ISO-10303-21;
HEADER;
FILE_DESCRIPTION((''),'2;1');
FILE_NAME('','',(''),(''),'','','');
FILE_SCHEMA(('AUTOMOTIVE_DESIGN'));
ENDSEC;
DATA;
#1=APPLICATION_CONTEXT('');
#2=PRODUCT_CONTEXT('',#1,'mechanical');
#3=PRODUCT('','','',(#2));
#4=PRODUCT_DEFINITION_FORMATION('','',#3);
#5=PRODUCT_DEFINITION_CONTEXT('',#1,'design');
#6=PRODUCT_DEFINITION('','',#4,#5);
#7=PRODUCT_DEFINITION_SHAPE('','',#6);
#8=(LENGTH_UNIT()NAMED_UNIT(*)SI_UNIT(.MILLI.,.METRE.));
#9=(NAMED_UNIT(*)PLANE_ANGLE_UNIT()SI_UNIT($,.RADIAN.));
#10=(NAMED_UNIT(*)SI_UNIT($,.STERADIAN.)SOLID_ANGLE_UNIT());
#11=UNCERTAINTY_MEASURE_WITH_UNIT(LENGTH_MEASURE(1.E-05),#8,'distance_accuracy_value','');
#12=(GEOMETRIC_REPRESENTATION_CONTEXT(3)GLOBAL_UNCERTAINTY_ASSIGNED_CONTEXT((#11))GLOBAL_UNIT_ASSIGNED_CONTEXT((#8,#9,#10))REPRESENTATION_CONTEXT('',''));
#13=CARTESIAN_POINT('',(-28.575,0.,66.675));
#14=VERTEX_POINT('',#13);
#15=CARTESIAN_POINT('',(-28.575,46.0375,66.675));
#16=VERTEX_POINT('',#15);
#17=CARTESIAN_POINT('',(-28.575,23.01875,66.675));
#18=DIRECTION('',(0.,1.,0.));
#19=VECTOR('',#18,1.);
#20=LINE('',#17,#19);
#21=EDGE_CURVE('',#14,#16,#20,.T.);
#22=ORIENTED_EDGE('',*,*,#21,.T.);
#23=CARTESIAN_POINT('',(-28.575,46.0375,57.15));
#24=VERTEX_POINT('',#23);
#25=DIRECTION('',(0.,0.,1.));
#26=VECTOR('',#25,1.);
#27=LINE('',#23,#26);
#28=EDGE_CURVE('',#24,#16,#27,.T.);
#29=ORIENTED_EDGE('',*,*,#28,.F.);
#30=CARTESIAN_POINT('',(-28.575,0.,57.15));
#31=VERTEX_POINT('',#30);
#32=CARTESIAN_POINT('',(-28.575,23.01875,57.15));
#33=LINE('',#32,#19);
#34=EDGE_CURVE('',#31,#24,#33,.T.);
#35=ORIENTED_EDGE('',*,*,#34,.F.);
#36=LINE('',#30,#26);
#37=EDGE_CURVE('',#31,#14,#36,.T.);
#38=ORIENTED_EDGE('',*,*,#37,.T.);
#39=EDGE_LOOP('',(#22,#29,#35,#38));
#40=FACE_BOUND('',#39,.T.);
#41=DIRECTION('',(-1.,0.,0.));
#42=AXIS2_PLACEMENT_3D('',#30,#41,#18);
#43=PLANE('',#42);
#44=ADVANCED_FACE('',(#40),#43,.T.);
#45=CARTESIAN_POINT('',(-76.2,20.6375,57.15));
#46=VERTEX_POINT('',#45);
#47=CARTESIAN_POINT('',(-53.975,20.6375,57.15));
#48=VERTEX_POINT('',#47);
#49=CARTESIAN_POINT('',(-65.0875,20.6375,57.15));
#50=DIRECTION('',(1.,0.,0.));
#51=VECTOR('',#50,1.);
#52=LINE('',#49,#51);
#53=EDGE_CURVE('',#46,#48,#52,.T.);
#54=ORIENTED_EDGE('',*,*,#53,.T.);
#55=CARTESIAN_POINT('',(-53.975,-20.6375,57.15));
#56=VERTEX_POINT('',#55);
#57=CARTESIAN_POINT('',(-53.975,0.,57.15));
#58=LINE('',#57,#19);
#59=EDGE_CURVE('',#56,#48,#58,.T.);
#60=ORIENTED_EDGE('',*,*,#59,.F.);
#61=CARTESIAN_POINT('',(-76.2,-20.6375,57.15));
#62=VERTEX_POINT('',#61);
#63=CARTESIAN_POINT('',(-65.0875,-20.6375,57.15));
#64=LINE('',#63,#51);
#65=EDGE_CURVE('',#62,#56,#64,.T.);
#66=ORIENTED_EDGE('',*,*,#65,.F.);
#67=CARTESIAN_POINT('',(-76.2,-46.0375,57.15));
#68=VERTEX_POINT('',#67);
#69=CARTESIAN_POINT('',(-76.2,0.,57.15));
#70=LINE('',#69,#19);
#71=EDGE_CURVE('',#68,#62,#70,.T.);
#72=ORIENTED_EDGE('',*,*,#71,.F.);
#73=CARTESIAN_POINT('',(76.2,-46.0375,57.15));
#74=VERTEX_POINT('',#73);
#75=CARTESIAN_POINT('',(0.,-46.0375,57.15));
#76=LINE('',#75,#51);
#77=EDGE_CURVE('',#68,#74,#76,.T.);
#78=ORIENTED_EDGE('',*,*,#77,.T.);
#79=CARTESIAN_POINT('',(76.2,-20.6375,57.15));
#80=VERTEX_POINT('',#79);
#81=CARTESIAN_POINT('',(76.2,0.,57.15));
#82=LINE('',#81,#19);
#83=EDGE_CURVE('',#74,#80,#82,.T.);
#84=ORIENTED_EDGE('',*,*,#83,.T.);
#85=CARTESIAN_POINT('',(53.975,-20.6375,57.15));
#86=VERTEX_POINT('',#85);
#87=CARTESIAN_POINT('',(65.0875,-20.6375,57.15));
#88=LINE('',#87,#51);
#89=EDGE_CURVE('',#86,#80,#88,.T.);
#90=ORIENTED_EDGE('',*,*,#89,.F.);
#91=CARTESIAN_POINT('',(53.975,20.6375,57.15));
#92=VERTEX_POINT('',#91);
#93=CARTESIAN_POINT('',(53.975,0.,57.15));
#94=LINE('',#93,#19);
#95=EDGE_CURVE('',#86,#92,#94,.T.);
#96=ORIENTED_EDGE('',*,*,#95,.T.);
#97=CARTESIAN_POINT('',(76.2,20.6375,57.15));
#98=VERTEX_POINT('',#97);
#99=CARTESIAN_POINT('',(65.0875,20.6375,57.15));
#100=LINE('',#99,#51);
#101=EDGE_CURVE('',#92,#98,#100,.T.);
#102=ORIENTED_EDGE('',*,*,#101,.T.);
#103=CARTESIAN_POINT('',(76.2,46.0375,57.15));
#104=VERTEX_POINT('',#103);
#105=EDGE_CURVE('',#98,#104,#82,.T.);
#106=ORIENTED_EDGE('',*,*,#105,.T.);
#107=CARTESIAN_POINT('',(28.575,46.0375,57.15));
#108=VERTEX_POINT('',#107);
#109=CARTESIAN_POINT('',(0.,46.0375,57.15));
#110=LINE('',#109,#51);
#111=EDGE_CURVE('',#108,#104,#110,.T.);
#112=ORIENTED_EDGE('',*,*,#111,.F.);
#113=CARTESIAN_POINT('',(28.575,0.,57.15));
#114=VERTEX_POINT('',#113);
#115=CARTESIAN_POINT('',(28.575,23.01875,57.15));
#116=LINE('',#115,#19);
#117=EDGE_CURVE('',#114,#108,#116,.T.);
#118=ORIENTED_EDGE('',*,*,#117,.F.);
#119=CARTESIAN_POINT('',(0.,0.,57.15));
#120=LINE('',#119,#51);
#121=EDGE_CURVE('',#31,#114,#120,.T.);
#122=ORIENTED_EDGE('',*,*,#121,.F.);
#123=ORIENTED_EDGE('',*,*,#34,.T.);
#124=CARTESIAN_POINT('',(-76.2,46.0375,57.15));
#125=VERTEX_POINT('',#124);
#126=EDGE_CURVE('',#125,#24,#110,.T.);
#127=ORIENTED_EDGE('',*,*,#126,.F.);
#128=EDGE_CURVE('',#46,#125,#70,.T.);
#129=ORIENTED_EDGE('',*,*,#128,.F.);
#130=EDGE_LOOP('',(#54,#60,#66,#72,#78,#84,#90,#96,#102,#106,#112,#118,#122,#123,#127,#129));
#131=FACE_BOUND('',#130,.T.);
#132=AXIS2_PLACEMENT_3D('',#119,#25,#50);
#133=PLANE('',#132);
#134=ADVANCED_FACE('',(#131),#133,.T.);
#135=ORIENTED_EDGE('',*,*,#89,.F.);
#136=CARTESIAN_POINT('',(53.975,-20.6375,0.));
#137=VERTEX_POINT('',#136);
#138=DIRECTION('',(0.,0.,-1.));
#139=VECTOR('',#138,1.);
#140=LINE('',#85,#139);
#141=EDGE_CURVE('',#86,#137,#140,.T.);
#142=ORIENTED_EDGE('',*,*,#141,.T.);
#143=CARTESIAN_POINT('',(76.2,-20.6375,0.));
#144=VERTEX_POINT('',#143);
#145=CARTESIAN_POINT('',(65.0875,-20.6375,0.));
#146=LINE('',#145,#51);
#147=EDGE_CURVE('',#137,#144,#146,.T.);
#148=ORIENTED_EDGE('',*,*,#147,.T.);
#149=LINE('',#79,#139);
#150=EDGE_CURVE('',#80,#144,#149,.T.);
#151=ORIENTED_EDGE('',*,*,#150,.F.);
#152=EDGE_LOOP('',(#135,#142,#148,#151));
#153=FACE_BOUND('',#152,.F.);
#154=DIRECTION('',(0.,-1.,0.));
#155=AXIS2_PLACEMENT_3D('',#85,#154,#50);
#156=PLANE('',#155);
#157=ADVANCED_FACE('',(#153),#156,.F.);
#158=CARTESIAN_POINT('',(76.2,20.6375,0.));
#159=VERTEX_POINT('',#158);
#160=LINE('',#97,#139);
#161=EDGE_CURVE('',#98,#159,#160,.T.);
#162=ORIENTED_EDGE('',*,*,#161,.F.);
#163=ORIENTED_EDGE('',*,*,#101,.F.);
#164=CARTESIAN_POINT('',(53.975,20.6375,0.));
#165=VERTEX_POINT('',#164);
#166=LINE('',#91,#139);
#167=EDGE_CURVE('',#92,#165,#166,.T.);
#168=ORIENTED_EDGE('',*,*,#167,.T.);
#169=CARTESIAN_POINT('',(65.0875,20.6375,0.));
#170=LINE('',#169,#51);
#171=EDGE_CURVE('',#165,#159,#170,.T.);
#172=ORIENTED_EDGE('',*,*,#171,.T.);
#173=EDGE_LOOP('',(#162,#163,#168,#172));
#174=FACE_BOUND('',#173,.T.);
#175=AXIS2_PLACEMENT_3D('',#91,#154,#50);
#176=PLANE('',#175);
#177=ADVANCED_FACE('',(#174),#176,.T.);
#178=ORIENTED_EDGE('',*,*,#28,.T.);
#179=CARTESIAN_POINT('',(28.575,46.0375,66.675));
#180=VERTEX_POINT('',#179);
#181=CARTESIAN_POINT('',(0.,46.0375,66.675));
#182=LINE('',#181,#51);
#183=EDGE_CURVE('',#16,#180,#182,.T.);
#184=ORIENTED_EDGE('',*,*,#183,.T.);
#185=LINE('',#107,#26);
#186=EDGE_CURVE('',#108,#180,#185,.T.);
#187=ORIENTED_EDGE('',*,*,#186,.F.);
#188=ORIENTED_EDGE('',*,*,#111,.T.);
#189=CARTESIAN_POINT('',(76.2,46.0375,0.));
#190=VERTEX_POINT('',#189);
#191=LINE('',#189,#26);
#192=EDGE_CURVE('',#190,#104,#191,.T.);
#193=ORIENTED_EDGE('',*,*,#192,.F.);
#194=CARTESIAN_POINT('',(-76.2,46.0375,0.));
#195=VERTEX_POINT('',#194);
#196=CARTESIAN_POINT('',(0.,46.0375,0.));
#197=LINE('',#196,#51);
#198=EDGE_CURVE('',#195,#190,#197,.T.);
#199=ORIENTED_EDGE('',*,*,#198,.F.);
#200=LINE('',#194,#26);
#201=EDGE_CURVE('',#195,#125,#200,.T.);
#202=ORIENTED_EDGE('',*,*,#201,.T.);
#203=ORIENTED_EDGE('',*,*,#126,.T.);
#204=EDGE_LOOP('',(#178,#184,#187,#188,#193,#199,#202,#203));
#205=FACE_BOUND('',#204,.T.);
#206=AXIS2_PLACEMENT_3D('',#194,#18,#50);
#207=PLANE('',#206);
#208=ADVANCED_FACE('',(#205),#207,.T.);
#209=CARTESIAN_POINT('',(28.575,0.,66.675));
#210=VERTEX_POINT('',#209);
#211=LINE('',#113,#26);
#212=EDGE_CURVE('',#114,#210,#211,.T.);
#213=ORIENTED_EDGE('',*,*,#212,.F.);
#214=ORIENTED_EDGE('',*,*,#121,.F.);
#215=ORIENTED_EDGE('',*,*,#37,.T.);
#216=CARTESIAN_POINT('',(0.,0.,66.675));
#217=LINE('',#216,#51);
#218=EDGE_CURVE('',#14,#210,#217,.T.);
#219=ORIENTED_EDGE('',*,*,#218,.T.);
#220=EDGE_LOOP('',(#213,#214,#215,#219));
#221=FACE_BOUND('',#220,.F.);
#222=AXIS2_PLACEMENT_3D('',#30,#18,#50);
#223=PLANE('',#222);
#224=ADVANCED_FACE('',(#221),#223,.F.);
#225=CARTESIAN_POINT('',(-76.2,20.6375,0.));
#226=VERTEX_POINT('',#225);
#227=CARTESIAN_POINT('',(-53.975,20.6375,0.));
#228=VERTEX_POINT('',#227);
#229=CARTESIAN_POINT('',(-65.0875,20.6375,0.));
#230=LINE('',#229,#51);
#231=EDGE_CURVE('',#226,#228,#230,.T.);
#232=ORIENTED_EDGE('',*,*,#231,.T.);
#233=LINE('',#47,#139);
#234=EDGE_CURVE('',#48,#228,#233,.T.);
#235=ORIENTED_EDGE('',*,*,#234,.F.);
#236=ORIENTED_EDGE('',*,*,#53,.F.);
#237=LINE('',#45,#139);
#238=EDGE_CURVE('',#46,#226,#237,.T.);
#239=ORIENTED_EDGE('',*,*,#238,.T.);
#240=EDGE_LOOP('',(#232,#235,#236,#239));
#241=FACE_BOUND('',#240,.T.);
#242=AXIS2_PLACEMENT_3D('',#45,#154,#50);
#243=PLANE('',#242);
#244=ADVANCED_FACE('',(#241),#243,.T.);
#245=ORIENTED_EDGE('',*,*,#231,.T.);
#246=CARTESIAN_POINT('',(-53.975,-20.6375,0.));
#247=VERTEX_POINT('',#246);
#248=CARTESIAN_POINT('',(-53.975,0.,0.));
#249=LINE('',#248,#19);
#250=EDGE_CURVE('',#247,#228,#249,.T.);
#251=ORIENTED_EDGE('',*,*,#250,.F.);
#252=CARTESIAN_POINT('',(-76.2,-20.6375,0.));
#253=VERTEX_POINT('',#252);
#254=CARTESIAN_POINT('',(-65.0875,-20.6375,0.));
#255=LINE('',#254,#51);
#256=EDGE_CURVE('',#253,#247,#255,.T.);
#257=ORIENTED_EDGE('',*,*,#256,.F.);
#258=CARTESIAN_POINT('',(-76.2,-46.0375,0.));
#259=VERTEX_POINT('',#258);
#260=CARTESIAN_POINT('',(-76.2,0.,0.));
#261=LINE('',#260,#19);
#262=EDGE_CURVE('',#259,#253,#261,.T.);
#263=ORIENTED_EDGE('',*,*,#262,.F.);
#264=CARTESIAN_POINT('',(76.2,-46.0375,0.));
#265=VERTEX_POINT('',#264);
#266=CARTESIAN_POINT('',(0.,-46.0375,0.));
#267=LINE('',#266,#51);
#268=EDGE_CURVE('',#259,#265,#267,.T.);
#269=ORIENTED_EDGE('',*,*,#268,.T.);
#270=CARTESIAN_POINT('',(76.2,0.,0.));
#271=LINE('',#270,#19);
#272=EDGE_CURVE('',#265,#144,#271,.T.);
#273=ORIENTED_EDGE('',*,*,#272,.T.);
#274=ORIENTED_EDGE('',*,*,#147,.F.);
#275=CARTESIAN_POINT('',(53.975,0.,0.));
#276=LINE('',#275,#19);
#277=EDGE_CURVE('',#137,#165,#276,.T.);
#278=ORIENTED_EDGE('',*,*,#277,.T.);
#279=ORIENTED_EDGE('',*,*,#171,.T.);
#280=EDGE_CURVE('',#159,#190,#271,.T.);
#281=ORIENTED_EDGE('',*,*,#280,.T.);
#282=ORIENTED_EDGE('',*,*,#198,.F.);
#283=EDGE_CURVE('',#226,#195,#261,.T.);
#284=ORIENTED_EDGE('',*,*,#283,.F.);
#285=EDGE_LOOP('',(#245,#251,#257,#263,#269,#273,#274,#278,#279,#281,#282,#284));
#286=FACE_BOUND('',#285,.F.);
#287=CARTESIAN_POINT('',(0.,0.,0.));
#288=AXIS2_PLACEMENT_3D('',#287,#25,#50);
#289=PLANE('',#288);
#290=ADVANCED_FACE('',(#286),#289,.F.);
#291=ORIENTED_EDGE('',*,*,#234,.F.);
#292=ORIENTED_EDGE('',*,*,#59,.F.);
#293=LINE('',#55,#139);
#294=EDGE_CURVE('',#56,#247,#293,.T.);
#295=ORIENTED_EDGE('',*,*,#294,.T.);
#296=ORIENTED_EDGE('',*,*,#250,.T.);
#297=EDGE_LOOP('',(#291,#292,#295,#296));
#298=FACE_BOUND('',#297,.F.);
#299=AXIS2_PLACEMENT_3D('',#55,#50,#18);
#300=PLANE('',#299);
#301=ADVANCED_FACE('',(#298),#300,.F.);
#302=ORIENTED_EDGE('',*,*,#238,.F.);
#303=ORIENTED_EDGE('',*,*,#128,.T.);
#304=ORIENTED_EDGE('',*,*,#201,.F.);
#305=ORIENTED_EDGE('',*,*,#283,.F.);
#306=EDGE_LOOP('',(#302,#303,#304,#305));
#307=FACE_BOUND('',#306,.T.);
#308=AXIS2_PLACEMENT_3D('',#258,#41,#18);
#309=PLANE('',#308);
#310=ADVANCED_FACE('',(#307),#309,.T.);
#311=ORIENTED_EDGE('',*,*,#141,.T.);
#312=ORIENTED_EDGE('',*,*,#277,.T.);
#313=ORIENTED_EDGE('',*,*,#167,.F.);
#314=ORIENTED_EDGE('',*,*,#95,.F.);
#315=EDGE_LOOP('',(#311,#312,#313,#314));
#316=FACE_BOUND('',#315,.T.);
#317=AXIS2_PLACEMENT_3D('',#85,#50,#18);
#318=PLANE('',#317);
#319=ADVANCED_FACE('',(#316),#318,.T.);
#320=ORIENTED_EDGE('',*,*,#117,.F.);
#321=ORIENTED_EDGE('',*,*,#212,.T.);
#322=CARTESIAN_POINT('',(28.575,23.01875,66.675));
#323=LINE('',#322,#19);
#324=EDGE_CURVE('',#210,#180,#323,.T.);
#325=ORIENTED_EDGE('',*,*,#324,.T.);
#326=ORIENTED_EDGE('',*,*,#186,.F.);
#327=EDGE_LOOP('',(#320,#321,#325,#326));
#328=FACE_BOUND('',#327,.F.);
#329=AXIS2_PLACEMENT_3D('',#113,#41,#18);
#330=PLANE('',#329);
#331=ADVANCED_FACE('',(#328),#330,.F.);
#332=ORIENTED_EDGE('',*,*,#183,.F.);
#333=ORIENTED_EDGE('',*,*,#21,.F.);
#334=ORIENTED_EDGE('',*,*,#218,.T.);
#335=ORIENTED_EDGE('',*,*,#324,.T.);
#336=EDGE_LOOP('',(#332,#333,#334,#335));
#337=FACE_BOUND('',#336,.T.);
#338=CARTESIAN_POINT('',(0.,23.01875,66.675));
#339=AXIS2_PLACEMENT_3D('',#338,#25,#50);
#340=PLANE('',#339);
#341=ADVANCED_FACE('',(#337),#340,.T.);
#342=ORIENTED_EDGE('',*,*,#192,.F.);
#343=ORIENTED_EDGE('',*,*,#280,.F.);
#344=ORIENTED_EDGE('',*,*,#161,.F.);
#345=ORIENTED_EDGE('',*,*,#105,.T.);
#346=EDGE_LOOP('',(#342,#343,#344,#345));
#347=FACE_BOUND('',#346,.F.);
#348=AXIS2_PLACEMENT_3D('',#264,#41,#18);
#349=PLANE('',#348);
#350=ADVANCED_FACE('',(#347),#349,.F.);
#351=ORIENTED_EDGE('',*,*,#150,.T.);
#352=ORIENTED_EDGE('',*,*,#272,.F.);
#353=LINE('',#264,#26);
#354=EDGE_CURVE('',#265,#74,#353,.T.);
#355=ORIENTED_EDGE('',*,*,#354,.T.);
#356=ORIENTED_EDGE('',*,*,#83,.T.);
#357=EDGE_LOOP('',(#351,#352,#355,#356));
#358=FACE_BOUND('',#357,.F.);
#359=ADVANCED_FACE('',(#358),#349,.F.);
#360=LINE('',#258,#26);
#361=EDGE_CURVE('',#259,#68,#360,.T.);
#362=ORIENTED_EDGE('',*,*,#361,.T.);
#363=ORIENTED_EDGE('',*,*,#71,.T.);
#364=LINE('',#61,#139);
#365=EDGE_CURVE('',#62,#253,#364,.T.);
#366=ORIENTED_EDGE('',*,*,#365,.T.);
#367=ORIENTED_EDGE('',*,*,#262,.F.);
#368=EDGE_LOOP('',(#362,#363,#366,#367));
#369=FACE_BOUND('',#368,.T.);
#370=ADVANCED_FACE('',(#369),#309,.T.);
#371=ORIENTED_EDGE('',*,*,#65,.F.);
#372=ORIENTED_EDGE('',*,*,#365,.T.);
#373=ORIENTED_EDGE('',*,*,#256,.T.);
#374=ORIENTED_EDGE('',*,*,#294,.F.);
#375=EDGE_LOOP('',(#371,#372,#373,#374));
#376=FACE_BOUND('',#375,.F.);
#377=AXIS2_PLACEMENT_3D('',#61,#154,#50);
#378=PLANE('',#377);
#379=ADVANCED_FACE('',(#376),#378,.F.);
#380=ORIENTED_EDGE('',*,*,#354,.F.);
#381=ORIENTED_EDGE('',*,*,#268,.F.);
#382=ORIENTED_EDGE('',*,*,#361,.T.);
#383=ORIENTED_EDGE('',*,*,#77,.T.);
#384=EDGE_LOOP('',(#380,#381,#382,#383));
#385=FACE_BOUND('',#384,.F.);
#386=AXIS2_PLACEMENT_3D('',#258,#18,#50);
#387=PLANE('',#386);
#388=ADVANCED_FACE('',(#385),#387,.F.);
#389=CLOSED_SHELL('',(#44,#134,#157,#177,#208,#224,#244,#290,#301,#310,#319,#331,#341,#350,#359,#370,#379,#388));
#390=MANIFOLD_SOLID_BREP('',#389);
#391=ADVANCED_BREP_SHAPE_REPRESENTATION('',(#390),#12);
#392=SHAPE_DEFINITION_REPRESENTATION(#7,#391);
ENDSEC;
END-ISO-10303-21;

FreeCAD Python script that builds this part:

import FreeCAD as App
import Part
import Sketcher
Q = App.Units.Quantity

doc = App.newDocument("Part")
body = doc.addObject("PartDesign::Body", "Body")

# Sketch on XY plane
sketch1 = body.newObject("Sketcher::SketchObject", "Sketch")
sketch1.AttachmentSupport = (doc.getObject("XY_Plane"), [""])
sketch1.MapMode = "FlatFace"
sketch1.addGeometry(Part.LineSegment(App.Vector(-76, 46, 0), App.Vector(-76, -46, 0)), False)
sketch1.addGeometry(Part.LineSegment(App.Vector(-76, -46, 0), App.Vector(76, -46, 0)), False)
sketch1.addGeometry(Part.LineSegment(App.Vector(76, -46, 0), App.Vector(76, 46, 0)), False)
sketch1.addGeometry(Part.LineSegment(App.Vector(76, 46, 0), App.Vector(-76, 46, 0)), False)
sketch1.addConstraint(Sketcher.Constraint("Coincident", 0, 2, 1, 1))
sketch1.addConstraint(Sketcher.Constraint("Coincident", 1, 2, 2, 1))
sketch1.addConstraint(Sketcher.Constraint("Coincident", 2, 2, 3, 1))
sketch1.addConstraint(Sketcher.Constraint("Coincident", 3, 2, 0, 1))
sketch1.addConstraint(Sketcher.Constraint("Vertical", 0))
sketch1.addConstraint(Sketcher.Constraint("Horizontal", 1))
sketch1.addConstraint(Sketcher.Constraint("Vertical", 2))
sketch1.addConstraint(Sketcher.Constraint("Horizontal", 3))
sketch1.addConstraint(Sketcher.Constraint("Symmetric", 0, 2, 2, 2, -1, 1))
sketch1.addConstraint(Sketcher.Constraint("DistanceX", 1, 1, 1, 2, Q("6 in")))
sketch1.addConstraint(Sketcher.Constraint("DistanceY", 0, 2, 0, 1, Q("3.625 in")))
pad1 = body.newObject("PartDesign::Pad", "Pad")
pad1.Profile = sketch1
pad1.Length = Q("2.25 in")

# Sketch on XY plane
sketch2 = body.newObject("Sketcher::SketchObject", "Sketch001")
sketch2.AttachmentSupport = (doc.getObject("XY_Plane"), [""])
sketch2.MapMode = "FlatFace"
sketch2.AttachmentOffset = App.Placement(App.Vector(0, 0, 2.25 * 25.4), App.Rotation())
sketch2.addGeometry(Part.LineSegment(App.Vector(-29, 46, 0), App.Vector(-29, 0, 0)), False)
sketch2.addGeometry(Part.LineSegment(App.Vector(-29, 0, 0), App.Vector(29, 0, 0)), False)
sketch2.addGeometry(Part.LineSegment(App.Vector(29, 0, 0), App.Vector(29, 46, 0)), False)
sketch2.addGeometry(Part.LineSegment(App.Vector(29, 46, 0), App.Vector(-29, 46, 0)), False)
sketch2.addConstraint(Sketcher.Constraint("Coincident", 0, 2, 1, 1))
sketch2.addConstraint(Sketcher.Constraint("Coincident", 1, 2, 2, 1))
sketch2.addConstraint(Sketcher.Constraint("Coincident", 2, 2, 3, 1))
sketch2.addConstraint(Sketcher.Constraint("Coincident", 3, 2, 0, 1))
sketch2.addConstraint(Sketcher.Constraint("Vertical", 0))
sketch2.addConstraint(Sketcher.Constraint("Horizontal", 1))
sketch2.addConstraint(Sketcher.Constraint("Vertical", 2))
sketch2.addConstraint(Sketcher.Constraint("Horizontal", 3))
sketch2.addConstraint(Sketcher.Constraint("Symmetric", 0, 2, 1, 2, -1, 1))
sketch2.addConstraint(Sketcher.Constraint("DistanceX", 1, 1, 1, 2, Q("2.25 in")))
sketch2.addConstraint(Sketcher.Constraint("DistanceY", 0, 2, 0, 1, Q("1.8125 in")))
pad2 = body.newObject("PartDesign::Pad", "Pad001")
pad2.Profile = sketch2
pad2.Length = Q("0.375 in")

# Sketch on XY plane
sketch3 = body.newObject("Sketcher::SketchObject", "Sketch002")
sketch3.AttachmentSupport = (doc.getObject("XY_Plane"), [""])
sketch3.MapMode = "FlatFace"
sketch3.AttachmentOffset = App.Placement(App.Vector(0, 0, 2.25 * 25.4), App.Rotation())
sketch3.addGeometry(Part.LineSegment(App.Vector(-76, 21, 0), App.Vector(-76, -21, 0)), False)
sketch3.addGeometry(Part.LineSegment(App.Vector(-76, -21, 0), App.Vector(-54, -21, 0)), False)
sketch3.addGeometry(Part.LineSegment(App.Vector(-54, -21, 0), App.Vector(-54, 21, 0)), False)
sketch3.addGeometry(Part.LineSegment(App.Vector(-54, 21, 0), App.Vector(-76, 21, 0)), False)
sketch3.addGeometry(Part.LineSegment(App.Vector(54, 21, 0), App.Vector(54, -21, 0)), False)
sketch3.addGeometry(Part.LineSegment(App.Vector(54, -21, 0), App.Vector(76, -21, 0)), False)
sketch3.addGeometry(Part.LineSegment(App.Vector(76, -21, 0), App.Vector(76, 21, 0)), False)
sketch3.addGeometry(Part.LineSegment(App.Vector(76, 21, 0), App.Vector(54, 21, 0)), False)
sketch3.addConstraint(Sketcher.Constraint("Coincident", 0, 2, 1, 1))
sketch3.addConstraint(Sketcher.Constraint("Coincident", 1, 2, 2, 1))
sketch3.addConstraint(Sketcher.Constraint("Coincident", 2, 2, 3, 1))
sketch3.addConstraint(Sketcher.Constraint("Coincident", 3, 2, 0, 1))
sketch3.addConstraint(Sketcher.Constraint("Coincident", 4, 2, 5, 1))
sketch3.addConstraint(Sketcher.Constraint("Coincident", 5, 2, 6, 1))
sketch3.addConstraint(Sketcher.Constraint("Coincident", 6, 2, 7, 1))
sketch3.addConstraint(Sketcher.Constraint("Coincident", 7, 2, 4, 1))
sketch3.addConstraint(Sketcher.Constraint("Vertical", 0))
sketch3.addConstraint(Sketcher.Constraint("Horizontal", 1))
sketch3.addConstraint(Sketcher.Constraint("Vertical", 2))
sketch3.addConstraint(Sketcher.Constraint("Horizontal", 3))
sketch3.addConstraint(Sketcher.Constraint("Vertical", 4))
sketch3.addConstraint(Sketcher.Constraint("Horizontal", 5))
sketch3.addConstraint(Sketcher.Constraint("Vertical", 6))
sketch3.addConstraint(Sketcher.Constraint("Horizontal", 7))
sketch3.addConstraint(Sketcher.Constraint("Symmetric", 2, 2, 4, 2, -1, 1))
sketch3.addConstraint(Sketcher.Constraint("Symmetric", 0, 2, 6, 2, -1, 1))
sketch3.addConstraint(Sketcher.Constraint("Horizontal", 1, 2, 4, 2))
sketch3.addConstraint(Sketcher.Constraint("DistanceX", 0, 2, -1, 1, Q("3 in")))
sketch3.addConstraint(Sketcher.Constraint("DistanceX", 1, 1, 1, 2, Q("0.875 in")))
sketch3.addConstraint(Sketcher.Constraint("DistanceY", 0, 2, 0, 1, Q("1.625 in")))
pocket1 = body.newObject("PartDesign::Pocket", "Pocket")
pocket1.Profile = sketch3
pocket1.Length = Q("2.25 in")

doc.recompute()
